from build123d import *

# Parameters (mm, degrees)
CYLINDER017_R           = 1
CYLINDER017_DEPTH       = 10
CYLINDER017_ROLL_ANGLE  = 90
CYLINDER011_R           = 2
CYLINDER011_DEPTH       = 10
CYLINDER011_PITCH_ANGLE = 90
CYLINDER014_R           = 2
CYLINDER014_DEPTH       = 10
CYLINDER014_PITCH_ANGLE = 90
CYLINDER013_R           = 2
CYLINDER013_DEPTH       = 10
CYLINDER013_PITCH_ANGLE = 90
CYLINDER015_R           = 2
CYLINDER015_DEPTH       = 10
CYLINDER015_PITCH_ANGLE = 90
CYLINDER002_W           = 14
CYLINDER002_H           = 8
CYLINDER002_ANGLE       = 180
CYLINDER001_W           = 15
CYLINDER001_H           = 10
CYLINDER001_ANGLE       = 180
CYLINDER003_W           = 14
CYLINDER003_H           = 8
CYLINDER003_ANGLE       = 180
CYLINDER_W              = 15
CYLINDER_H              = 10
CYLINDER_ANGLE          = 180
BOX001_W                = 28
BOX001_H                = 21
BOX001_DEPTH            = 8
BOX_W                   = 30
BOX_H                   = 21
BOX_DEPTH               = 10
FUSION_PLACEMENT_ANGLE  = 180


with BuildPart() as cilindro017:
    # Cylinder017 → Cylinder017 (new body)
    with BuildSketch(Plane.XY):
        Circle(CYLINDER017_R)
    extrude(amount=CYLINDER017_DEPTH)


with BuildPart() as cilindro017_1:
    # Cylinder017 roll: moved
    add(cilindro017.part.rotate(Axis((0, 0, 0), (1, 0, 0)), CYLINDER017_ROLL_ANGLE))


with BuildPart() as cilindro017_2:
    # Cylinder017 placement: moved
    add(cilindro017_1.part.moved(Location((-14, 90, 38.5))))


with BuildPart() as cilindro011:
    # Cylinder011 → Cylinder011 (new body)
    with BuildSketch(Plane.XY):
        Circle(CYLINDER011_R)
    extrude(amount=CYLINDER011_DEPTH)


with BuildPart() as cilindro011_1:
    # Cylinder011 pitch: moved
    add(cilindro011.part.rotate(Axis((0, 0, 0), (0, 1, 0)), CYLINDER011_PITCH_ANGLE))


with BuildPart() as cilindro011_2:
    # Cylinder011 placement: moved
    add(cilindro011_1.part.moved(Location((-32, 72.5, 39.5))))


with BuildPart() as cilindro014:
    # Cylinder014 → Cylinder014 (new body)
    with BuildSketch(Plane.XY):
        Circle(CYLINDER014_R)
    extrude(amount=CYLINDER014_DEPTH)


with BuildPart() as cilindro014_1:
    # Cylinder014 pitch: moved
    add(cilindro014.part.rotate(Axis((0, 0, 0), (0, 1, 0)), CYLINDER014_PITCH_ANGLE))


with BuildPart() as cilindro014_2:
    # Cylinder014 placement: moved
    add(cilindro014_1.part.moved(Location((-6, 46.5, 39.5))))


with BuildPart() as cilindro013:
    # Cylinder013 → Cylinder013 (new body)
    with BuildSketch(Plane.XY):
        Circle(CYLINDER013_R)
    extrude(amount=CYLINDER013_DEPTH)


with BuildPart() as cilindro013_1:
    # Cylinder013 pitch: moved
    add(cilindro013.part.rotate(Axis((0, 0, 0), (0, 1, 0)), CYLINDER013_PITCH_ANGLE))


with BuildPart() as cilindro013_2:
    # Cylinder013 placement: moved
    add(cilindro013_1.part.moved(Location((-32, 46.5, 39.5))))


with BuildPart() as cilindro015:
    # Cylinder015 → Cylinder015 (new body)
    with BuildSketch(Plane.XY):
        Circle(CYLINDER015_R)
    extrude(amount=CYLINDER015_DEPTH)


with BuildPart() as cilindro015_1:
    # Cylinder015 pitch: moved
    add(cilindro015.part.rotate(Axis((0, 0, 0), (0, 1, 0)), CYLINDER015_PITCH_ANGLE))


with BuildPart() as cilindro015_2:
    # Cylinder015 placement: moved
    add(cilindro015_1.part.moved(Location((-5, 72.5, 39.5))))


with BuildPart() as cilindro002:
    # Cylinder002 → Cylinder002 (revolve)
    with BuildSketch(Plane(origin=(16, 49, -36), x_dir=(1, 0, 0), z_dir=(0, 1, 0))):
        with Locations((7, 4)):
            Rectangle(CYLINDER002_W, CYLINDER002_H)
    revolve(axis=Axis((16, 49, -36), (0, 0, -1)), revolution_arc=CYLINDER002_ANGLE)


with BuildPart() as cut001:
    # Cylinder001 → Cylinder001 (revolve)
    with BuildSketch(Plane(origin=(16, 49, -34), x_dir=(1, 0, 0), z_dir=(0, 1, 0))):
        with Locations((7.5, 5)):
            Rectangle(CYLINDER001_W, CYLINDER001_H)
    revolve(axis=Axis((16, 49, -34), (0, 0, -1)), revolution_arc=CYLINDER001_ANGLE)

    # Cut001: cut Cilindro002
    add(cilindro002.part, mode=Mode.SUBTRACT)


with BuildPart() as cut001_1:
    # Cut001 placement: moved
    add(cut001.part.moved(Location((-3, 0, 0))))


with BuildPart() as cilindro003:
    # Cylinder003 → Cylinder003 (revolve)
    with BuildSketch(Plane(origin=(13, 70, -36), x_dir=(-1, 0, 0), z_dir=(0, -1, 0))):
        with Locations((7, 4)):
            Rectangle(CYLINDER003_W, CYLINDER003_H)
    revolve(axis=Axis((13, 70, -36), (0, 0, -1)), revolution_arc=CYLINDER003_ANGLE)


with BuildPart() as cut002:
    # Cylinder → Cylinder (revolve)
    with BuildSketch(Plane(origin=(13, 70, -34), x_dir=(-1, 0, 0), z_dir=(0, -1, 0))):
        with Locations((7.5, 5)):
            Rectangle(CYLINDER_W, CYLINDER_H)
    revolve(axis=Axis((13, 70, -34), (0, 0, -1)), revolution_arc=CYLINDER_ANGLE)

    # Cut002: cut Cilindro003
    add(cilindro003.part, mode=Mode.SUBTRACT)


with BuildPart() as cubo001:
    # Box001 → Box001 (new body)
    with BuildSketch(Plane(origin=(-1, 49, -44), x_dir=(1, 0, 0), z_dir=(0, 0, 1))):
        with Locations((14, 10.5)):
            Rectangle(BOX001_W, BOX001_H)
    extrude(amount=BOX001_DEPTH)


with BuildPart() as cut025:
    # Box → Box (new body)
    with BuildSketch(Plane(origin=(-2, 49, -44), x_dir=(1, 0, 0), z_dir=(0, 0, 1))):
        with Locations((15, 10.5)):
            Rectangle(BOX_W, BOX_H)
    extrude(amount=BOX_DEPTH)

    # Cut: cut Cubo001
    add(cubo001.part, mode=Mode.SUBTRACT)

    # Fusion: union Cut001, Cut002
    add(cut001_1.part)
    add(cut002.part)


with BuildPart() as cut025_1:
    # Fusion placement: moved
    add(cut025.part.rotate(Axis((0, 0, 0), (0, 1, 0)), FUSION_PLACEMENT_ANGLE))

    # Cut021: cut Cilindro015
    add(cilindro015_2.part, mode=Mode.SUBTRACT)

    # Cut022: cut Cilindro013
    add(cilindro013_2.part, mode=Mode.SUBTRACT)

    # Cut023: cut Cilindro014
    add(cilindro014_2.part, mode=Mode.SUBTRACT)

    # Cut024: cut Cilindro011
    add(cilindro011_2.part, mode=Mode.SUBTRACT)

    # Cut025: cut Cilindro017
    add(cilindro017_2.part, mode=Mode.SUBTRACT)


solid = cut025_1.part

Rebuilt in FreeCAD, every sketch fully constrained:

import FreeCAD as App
import Part
import Sketcher
from FreeCAD import Vector

doc = App.newDocument("Part")
body = doc.addObject("PartDesign::Body", "Body")

sketch1 = doc.addObject("Sketcher::SketchObject", "Sketch")
body.addObject(sketch1)
sketch1.AttachmentSupport = (doc.XY_Plane, [""])
sketch1.MapMode = "FlatFace"
sketch1.addGeometry(Part.Circle(Vector(0, 0, 0), Vector(0, 0, 1), 1), False)
sketch1.addConstraint([
    Sketcher.Constraint("Coincident", 0, 3, -1, 1),
    Sketcher.Constraint("Diameter", 0, 2.0),
])
pad1 = doc.addObject("PartDesign::Pad", "Pad")
body.addObject(pad1)
pad1.Profile = sketch1
pad1.Length = 10
body2 = doc.addObject("PartDesign::Body", "Body001")
doc.recompute()

body.Placement = App.Placement(Vector(0, 0, 0), App.Rotation(Vector(1, 0, 0), 90))
boolean = doc.addObject("PartDesign::Boolean", "Boolean")
body2.addObject(boolean)
boolean.Type = "Fuse"
boolean.addObjects([body])
body3 = doc.addObject("PartDesign::Body", "Body002")
doc.recompute()

body2.Placement = App.Placement(Vector(-14, 90, 38.5), App.Rotation(Vector(0, 0, 1), 0))
boolean2 = doc.addObject("PartDesign::Boolean", "Boolean001")
body3.addObject(boolean2)
boolean2.Type = "Fuse"
boolean2.addObjects([body2])
body4 = doc.addObject("PartDesign::Body", "Body003")

sketch2 = doc.addObject("Sketcher::SketchObject", "Sketch001")
body4.addObject(sketch2)
sketch2.AttachmentSupport = (doc.getObject("XY_Plane003"), [""])
sketch2.MapMode = "FlatFace"
sketch2.addGeometry(Part.Circle(Vector(0, 0, 0), Vector(0, 0, 1), 2), False)
sketch2.addConstraint([
    Sketcher.Constraint("Coincident", 0, 3, -1, 1),
    Sketcher.Constraint("Diameter", 0, 4.0),
])
pad2 = doc.addObject("PartDesign::Pad", "Pad001")
body4.addObject(pad2)
pad2.Profile = sketch2
pad2.Length = 10
body5 = doc.addObject("PartDesign::Body", "Body004")
doc.recompute()

body4.Placement = App.Placement(Vector(0, 0, 0), App.Rotation(Vector(0, 1, 0), 90))
boolean3 = doc.addObject("PartDesign::Boolean", "Boolean002")
body5.addObject(boolean3)
boolean3.Type = "Fuse"
boolean3.addObjects([body4])
body6 = doc.addObject("PartDesign::Body", "Body005")
doc.recompute()

body5.Placement = App.Placement(Vector(-32, 72.5, 39.5), App.Rotation(Vector(0, 0, 1), 0))
boolean4 = doc.addObject("PartDesign::Boolean", "Boolean003")
body6.addObject(boolean4)
boolean4.Type = "Fuse"
boolean4.addObjects([body5])
body7 = doc.addObject("PartDesign::Body", "Body006")

sketch3 = doc.addObject("Sketcher::SketchObject", "Sketch002")
body7.addObject(sketch3)
sketch3.AttachmentSupport = (doc.getObject("XY_Plane006"), [""])
sketch3.MapMode = "FlatFace"
sketch3.addGeometry(Part.Circle(Vector(0, 0, 0), Vector(0, 0, 1), 2), False)
sketch3.addConstraint([
    Sketcher.Constraint("Coincident", 0, 3, -1, 1),
    Sketcher.Constraint("Diameter", 0, 4.0),
])
pad3 = doc.addObject("PartDesign::Pad", "Pad002")
body7.addObject(pad3)
pad3.Profile = sketch3
pad3.Length = 10
body8 = doc.addObject("PartDesign::Body", "Body007")
doc.recompute()

body7.Placement = App.Placement(Vector(0, 0, 0), App.Rotation(Vector(0, 1, 0), 90))
boolean5 = doc.addObject("PartDesign::Boolean", "Boolean004")
body8.addObject(boolean5)
boolean5.Type = "Fuse"
boolean5.addObjects([body7])
body9 = doc.addObject("PartDesign::Body", "Body008")
doc.recompute()

body8.Placement = App.Placement(Vector(-6, 46.5, 39.5), App.Rotation(Vector(0, 0, 1), 0))
boolean6 = doc.addObject("PartDesign::Boolean", "Boolean005")
body9.addObject(boolean6)
boolean6.Type = "Fuse"
boolean6.addObjects([body8])
body10 = doc.addObject("PartDesign::Body", "Body009")

sketch4 = doc.addObject("Sketcher::SketchObject", "Sketch003")
body10.addObject(sketch4)
sketch4.AttachmentSupport = (doc.getObject("XY_Plane009"), [""])
sketch4.MapMode = "FlatFace"
sketch4.addGeometry(Part.Circle(Vector(0, 0, 0), Vector(0, 0, 1), 2), False)
sketch4.addConstraint([
    Sketcher.Constraint("Coincident", 0, 3, -1, 1),
    Sketcher.Constraint("Diameter", 0, 4.0),
])
pad4 = doc.addObject("PartDesign::Pad", "Pad003")
body10.addObject(pad4)
pad4.Profile = sketch4
pad4.Length = 10
body11 = doc.addObject("PartDesign::Body", "Body010")
doc.recompute()

body10.Placement = App.Placement(Vector(0, 0, 0), App.Rotation(Vector(0, 1, 0), 90))
boolean7 = doc.addObject("PartDesign::Boolean", "Boolean006")
body11.addObject(boolean7)
boolean7.Type = "Fuse"
boolean7.addObjects([body10])
body12 = doc.addObject("PartDesign::Body", "Body011")
doc.recompute()

body11.Placement = App.Placement(Vector(-32, 46.5, 39.5), App.Rotation(Vector(0, 0, 1), 0))
boolean8 = doc.addObject("PartDesign::Boolean", "Boolean007")
body12.addObject(boolean8)
boolean8.Type = "Fuse"
boolean8.addObjects([body11])
body13 = doc.addObject("PartDesign::Body", "Body012")

sketch5 = doc.addObject("Sketcher::SketchObject", "Sketch004")
body13.addObject(sketch5)
sketch5.AttachmentSupport = (doc.getObject("XY_Plane012"), [""])
sketch5.MapMode = "FlatFace"
sketch5.addGeometry(Part.Circle(Vector(0, 0, 0), Vector(0, 0, 1), 2), False)
sketch5.addConstraint([
    Sketcher.Constraint("Coincident", 0, 3, -1, 1),
    Sketcher.Constraint("Diameter", 0, 4.0),
])
pad5 = doc.addObject("PartDesign::Pad", "Pad004")
body13.addObject(pad5)
pad5.Profile = sketch5
pad5.Length = 10
body14 = doc.addObject("PartDesign::Body", "Body013")
doc.recompute()

body13.Placement = App.Placement(Vector(0, 0, 0), App.Rotation(Vector(0, 1, 0), 90))
boolean9 = doc.addObject("PartDesign::Boolean", "Boolean008")
body14.addObject(boolean9)
boolean9.Type = "Fuse"
boolean9.addObjects([body13])
body15 = doc.addObject("PartDesign::Body", "Body014")
doc.recompute()

body14.Placement = App.Placement(Vector(-5, 72.5, 39.5), App.Rotation(Vector(0, 0, 1), 0))
boolean10 = doc.addObject("PartDesign::Boolean", "Boolean009")
body15.addObject(boolean10)
boolean10.Type = "Fuse"
boolean10.addObjects([body14])
body16 = doc.addObject("PartDesign::Body", "Body015")

sketch6 = doc.addObject("Sketcher::SketchObject", "Sketch005")
body16.addObject(sketch6)
sketch6.AttachmentSupport = (doc.getObject("XZ_Plane015"), [""])
sketch6.MapMode = "FlatFace"
sketch6.AttachmentOffset = App.Placement(Vector(0, 0, -49), App.Rotation())
sketch6.addGeometry([
    Part.LineSegment(Vector(16, -44, 0), Vector(16, -36, 0)),
    Part.LineSegment(Vector(16, -36, 0), Vector(30, -36, 0)),
    Part.LineSegment(Vector(30, -36, 0), Vector(30, -44, 0)),
    Part.LineSegment(Vector(30, -44, 0), Vector(16, -44, 0)),
], False)
sketch6.addGeometry(Part.LineSegment(Vector(16, -36, 0), Vector(16, -44, 0)), True)
sketch6.addConstraint([
    Sketcher.Constraint("Coincident", 0, 2, 1, 1),
    Sketcher.Constraint("Coincident", 1, 2, 2, 1),
    Sketcher.Constraint("Coincident", 2, 2, 3, 1),
    Sketcher.Constraint("Coincident", 3, 2, 0, 1),
    Sketcher.Constraint("Vertical", 0),
    Sketcher.Constraint("Horizontal", 1),
    Sketcher.Constraint("Vertical", 2),
    Sketcher.Constraint("Horizontal", 3),
    Sketcher.Constraint("Vertical", 4),
    Sketcher.Constraint("Coincident", 4, 1, 0, 2),
    Sketcher.Constraint("Horizontal", 2, 2, 4, 2),
    Sketcher.Constraint("DistanceX", 1, 1, 1, 2, 14.0),
    Sketcher.Constraint("DistanceY", 0, 1, 0, 2, 8.0),
    Sketcher.Constraint("DistanceX", -1, 1, 0, 2, 16.0),
    Sketcher.Constraint("DistanceY", 0, 2, -1, 1, 36.0),
])
revolution = doc.addObject("PartDesign::Revolution", "Revolution")
body16.addObject(revolution)
revolution.Profile = sketch6
revolution.ReferenceAxis = (sketch6, ["Axis0"])
revolution.Angle = 180
body17 = doc.addObject("PartDesign::Body", "Body016")

sketch7 = doc.addObject("Sketcher::SketchObject", "Sketch006")
body17.addObject(sketch7)
sketch7.AttachmentSupport = (doc.getObject("XZ_Plane016"), [""])
sketch7.MapMode = "FlatFace"
sketch7.AttachmentOffset = App.Placement(Vector(0, 0, -49), App.Rotation())
sketch7.addGeometry([
    Part.LineSegment(Vector(16, -44, 0), Vector(16, -34, 0)),
    Part.LineSegment(Vector(16, -34, 0), Vector(31, -34, 0)),
    Part.LineSegment(Vector(31, -34, 0), Vector(31, -44, 0)),
    Part.LineSegment(Vector(31, -44, 0), Vector(16, -44, 0)),
], False)
sketch7.addGeometry(Part.LineSegment(Vector(16, -34, 0), Vector(16, -44, 0)), True)
sketch7.addConstraint([
    Sketcher.Constraint("Coincident", 0, 2, 1, 1),
    Sketcher.Constraint("Coincident", 1, 2, 2, 1),
    Sketcher.Constraint("Coincident", 2, 2, 3, 1),
    Sketcher.Constraint("Coincident", 3, 2, 0, 1),
    Sketcher.Constraint("Vertical", 0),
    Sketcher.Constraint("Horizontal", 1),
    Sketcher.Constraint("Vertical", 2),
    Sketcher.Constraint("Horizontal", 3),
    Sketcher.Constraint("Vertical", 4),
    Sketcher.Constraint("Coincident", 4, 1, 0, 2),
    Sketcher.Constraint("Horizontal", 2, 2, 4, 2),
    Sketcher.Constraint("DistanceX", 1, 1, 1, 2, 15.0),
    Sketcher.Constraint("DistanceY", 0, 1, 0, 2, 10.0),
    Sketcher.Constraint("DistanceX", -1, 1, 0, 2, 16.0),
    Sketcher.Constraint("DistanceY", 0, 2, -1, 1, 34.0),
])
revolution2 = doc.addObject("PartDesign::Revolution", "Revolution001")
body17.addObject(revolution2)
revolution2.Profile = sketch7
revolution2.ReferenceAxis = (sketch7, ["Axis0"])
revolution2.Angle = 180
doc.recompute()

boolean11 = doc.addObject("PartDesign::Boolean", "Boolean010")
body17.addObject(boolean11)
boolean11.Type = "Cut"
boolean11.addObjects([body16])
body18 = doc.addObject("PartDesign::Body", "Body017")
doc.recompute()

body17.Placement = App.Placement(Vector(-3, 0, 0), App.Rotation(Vector(0, 0, 1), 0))
boolean12 = doc.addObject("PartDesign::Boolean", "Boolean011")
body18.addObject(boolean12)
boolean12.Type = "Fuse"
boolean12.addObjects([body17])
body19 = doc.addObject("PartDesign::Body", "Body018")

sketch8 = doc.addObject("Sketcher::SketchObject", "Sketch007")
body19.addObject(sketch8)
sketch8.AttachmentSupport = (doc.getObject("XZ_Plane018"), [""])
sketch8.MapMode = "FlatFace"
sketch8.AttachmentOffset = App.Placement(Vector(0, 0, -70), App.Rotation())
sketch8.addGeometry([
    Part.LineSegment(Vector(13, -44, 0), Vector(13, -36, 0)),
    Part.LineSegment(Vector(13, -36, 0), Vector(-1, -36, 0)),
    Part.LineSegment(Vector(-1, -36, 0), Vector(-1, -44, 0)),
    Part.LineSegment(Vector(-1, -44, 0), Vector(13, -44, 0)),
], False)
sketch8.addGeometry(Part.LineSegment(Vector(13, -36, 0), Vector(13, -44, 0)), True)
sketch8.addConstraint([
    Sketcher.Constraint("Coincident", 0, 2, 1, 1),
    Sketcher.Constraint("Coincident", 1, 2, 2, 1),
    Sketcher.Constraint("Coincident", 2, 2, 3, 1),
    Sketcher.Constraint("Coincident", 3, 2, 0, 1),
    Sketcher.Constraint("Vertical", 0),
    Sketcher.Constraint("Horizontal", 1),
    Sketcher.Constraint("Vertical", 2),
    Sketcher.Constraint("Horizontal", 3),
    Sketcher.Constraint("Vertical", 4),
    Sketcher.Constraint("Coincident", 4, 1, 0, 2),
    Sketcher.Constraint("Horizontal", 2, 2, 4, 2),
    Sketcher.Constraint("DistanceX", 1, 2, 1, 1, 14.0),
    Sketcher.Constraint("DistanceY", 0, 1, 0, 2, 8.0),
    Sketcher.Constraint("DistanceX", -1, 1, 0, 2, 13.0),
    Sketcher.Constraint("DistanceY", 0, 2, -1, 1, 36.0),
])
revolution3 = doc.addObject("PartDesign::Revolution", "Revolution002")
body19.addObject(revolution3)
revolution3.Profile = sketch8
revolution3.ReferenceAxis = (sketch8, ["Axis0"])
revolution3.Angle = 180
body20 = doc.addObject("PartDesign::Body", "Body019")

sketch9 = doc.addObject("Sketcher::SketchObject", "Sketch008")
body20.addObject(sketch9)
sketch9.AttachmentSupport = (doc.getObject("XZ_Plane019"), [""])
sketch9.MapMode = "FlatFace"
sketch9.AttachmentOffset = App.Placement(Vector(0, 0, -70), App.Rotation())
sketch9.addGeometry([
    Part.LineSegment(Vector(13, -44, 0), Vector(13, -34, 0)),
    Part.LineSegment(Vector(13, -34, 0), Vector(-2, -34, 0)),
    Part.LineSegment(Vector(-2, -34, 0), Vector(-2, -44, 0)),
    Part.LineSegment(Vector(-2, -44, 0), Vector(13, -44, 0)),
], False)
sketch9.addGeometry(Part.LineSegment(Vector(13, -34, 0), Vector(13, -44, 0)), True)
sketch9.addConstraint([
    Sketcher.Constraint("Coincident", 0, 2, 1, 1),
    Sketcher.Constraint("Coincident", 1, 2, 2, 1),
    Sketcher.Constraint("Coincident", 2, 2, 3, 1),
    Sketcher.Constraint("Coincident", 3, 2, 0, 1),
    Sketcher.Constraint("Vertical", 0),
    Sketcher.Constraint("Horizontal", 1),
    Sketcher.Constraint("Vertical", 2),
    Sketcher.Constraint("Horizontal", 3),
    Sketcher.Constraint("Vertical", 4),
    Sketcher.Constraint("Coincident", 4, 1, 0, 2),
    Sketcher.Constraint("Horizontal", 2, 2, 4, 2),
    Sketcher.Constraint("DistanceX", 1, 2, 1, 1, 15.0),
    Sketcher.Constraint("DistanceY", 0, 1, 0, 2, 10.0),
    Sketcher.Constraint("DistanceX", -1, 1, 0, 2, 13.0),
    Sketcher.Constraint("DistanceY", 0, 2, -1, 1, 34.0),
])
revolution4 = doc.addObject("PartDesign::Revolution", "Revolution003")
body20.addObject(revolution4)
revolution4.Profile = sketch9
revolution4.ReferenceAxis = (sketch9, ["Axis0"])
revolution4.Angle = 180
doc.recompute()

boolean13 = doc.addObject("PartDesign::Boolean", "Boolean012")
body20.addObject(boolean13)
boolean13.Type = "Cut"
boolean13.addObjects([body19])
body21 = doc.addObject("PartDesign::Body", "Body020")

sketch10 = doc.addObject("Sketcher::SketchObject", "Sketch009")
body21.addObject(sketch10)
sketch10.AttachmentSupport = (doc.getObject("XY_Plane020"), [""])
sketch10.MapMode = "FlatFace"
sketch10.AttachmentOffset = App.Placement(Vector(0, 0, -44), App.Rotation())
sketch10.addGeometry([
    Part.LineSegment(Vector(-1, 70, 0), Vector(-1, 49, 0)),
    Part.LineSegment(Vector(-1, 49, 0), Vector(27, 49, 0)),
    Part.LineSegment(Vector(27, 49, 0), Vector(27, 70, 0)),
    Part.LineSegment(Vector(27, 70, 0), Vector(-1, 70, 0)),
], False)
sketch10.addConstraint([
    Sketcher.Constraint("Coincident", 0, 2, 1, 1),
    Sketcher.Constraint("Coincident", 1, 2, 2, 1),
    Sketcher.Constraint("Coincident", 2, 2, 3, 1),
    Sketcher.Constraint("Coincident", 3, 2, 0, 1),
    Sketcher.Constraint("Vertical", 0),
    Sketcher.Constraint("Horizontal", 1),
    Sketcher.Constraint("Vertical", 2),
    Sketcher.Constraint("Horizontal", 3),
    Sketcher.Constraint("DistanceX", 1, 1, 1, 2, 28.0),
    Sketcher.Constraint("DistanceY", 0, 2, 0, 1, 21.0),
    Sketcher.Constraint("DistanceX", 0, 2, -1, 1, 1.0),
    Sketcher.Constraint("DistanceY", -1, 1, 0, 2, 49.0),
])
pad6 = doc.addObject("PartDesign::Pad", "Pad005")
body21.addObject(pad6)
pad6.Profile = sketch10
pad6.Length = 8
body22 = doc.addObject("PartDesign::Body", "Body021")

sketch11 = doc.addObject("Sketcher::SketchObject", "Sketch010")
body22.addObject(sketch11)
sketch11.AttachmentSupport = (doc.getObject("XY_Plane021"), [""])
sketch11.MapMode = "FlatFace"
sketch11.AttachmentOffset = App.Placement(Vector(0, 0, -44), App.Rotation())
sketch11.addGeometry([
    Part.LineSegment(Vector(-2, 70, 0), Vector(-2, 49, 0)),
    Part.LineSegment(Vector(-2, 49, 0), Vector(28, 49, 0)),
    Part.LineSegment(Vector(28, 49, 0), Vector(28, 70, 0)),
    Part.LineSegment(Vector(28, 70, 0), Vector(-2, 70, 0)),
], False)
sketch11.addConstraint([
    Sketcher.Constraint("Coincident", 0, 2, 1, 1),
    Sketcher.Constraint("Coincident", 1, 2, 2, 1),
    Sketcher.Constraint("Coincident", 2, 2, 3, 1),
    Sketcher.Constraint("Coincident", 3, 2, 0, 1),
    Sketcher.Constraint("Vertical", 0),
    Sketcher.Constraint("Horizontal", 1),
    Sketcher.Constraint("Vertical", 2),
    Sketcher.Constraint("Horizontal", 3),
    Sketcher.Constraint("DistanceX", 1, 1, 1, 2, 30.0),
    Sketcher.Constraint("DistanceY", 0, 2, 0, 1, 21.0),
    Sketcher.Constraint("DistanceX", 0, 2, -1, 1, 2.0),
    Sketcher.Constraint("DistanceY", -1, 1, 0, 2, 49.0),
])
pad7 = doc.addObject("PartDesign::Pad", "Pad006")
body22.addObject(pad7)
pad7.Profile = sketch11
pad7.Length = 10
doc.recompute()

boolean14 = doc.addObject("PartDesign::Boolean", "Boolean013")
body22.addObject(boolean14)
boolean14.Type = "Cut"
boolean14.addObjects([body21])
doc.recompute()

boolean15 = doc.addObject("PartDesign::Boolean", "Boolean014")
body22.addObject(boolean15)
boolean15.Type = "Fuse"
boolean15.addObjects([body18])
doc.recompute()

boolean16 = doc.addObject("PartDesign::Boolean", "Boolean015")
body22.addObject(boolean16)
boolean16.Type = "Fuse"
boolean16.addObjects([body20])
body23 = doc.addObject("PartDesign::Body", "Body022")
doc.recompute()

body22.Placement = App.Placement(Vector(0, 0, 0), App.Rotation(Vector(0, 1, 0), 180))
boolean17 = doc.addObject("PartDesign::Boolean", "Boolean016")
body23.addObject(boolean17)
boolean17.Type = "Fuse"
boolean17.addObjects([body22])
doc.recompute()

boolean18 = doc.addObject("PartDesign::Boolean", "Boolean017")
body23.addObject(boolean18)
boolean18.Type = "Cut"
boolean18.addObjects([body15])
doc.recompute()

boolean19 = doc.addObject("PartDesign::Boolean", "Boolean018")
body23.addObject(boolean19)
boolean19.Type = "Cut"
boolean19.addObjects([body12])
doc.recompute()

boolean20 = doc.addObject("PartDesign::Boolean", "Boolean019")
body23.addObject(boolean20)
boolean20.Type = "Cut"
boolean20.addObjects([body9])
doc.recompute()

boolean21 = doc.addObject("PartDesign::Boolean", "Boolean020")
body23.addObject(boolean21)
boolean21.Type = "Cut"
boolean21.addObjects([body6])
doc.recompute()

boolean22 = doc.addObject("PartDesign::Boolean", "Boolean021")
body23.addObject(boolean22)
boolean22.Type = "Cut"
boolean22.addObjects([body3])

doc.recompute()
